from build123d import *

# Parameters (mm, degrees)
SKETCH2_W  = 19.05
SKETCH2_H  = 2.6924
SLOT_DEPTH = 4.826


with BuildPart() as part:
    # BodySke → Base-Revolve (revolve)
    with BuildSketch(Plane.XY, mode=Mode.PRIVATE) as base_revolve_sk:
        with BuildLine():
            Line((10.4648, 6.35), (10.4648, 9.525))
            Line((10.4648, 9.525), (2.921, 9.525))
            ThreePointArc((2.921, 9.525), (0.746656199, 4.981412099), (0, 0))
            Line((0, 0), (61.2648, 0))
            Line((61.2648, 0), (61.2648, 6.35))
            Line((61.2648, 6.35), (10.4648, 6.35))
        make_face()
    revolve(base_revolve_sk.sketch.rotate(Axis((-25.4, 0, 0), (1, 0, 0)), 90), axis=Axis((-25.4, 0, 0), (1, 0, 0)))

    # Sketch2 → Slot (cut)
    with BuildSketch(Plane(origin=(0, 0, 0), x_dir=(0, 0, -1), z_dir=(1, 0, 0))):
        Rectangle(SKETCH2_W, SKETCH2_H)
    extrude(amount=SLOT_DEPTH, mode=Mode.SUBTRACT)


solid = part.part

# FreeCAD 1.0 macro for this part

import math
import FreeCAD as App
import Part
import Sketcher

V = App.Vector
Q = App.Units.Quantity

doc = App.newDocument("Part")
body = doc.addObject("PartDesign::Body", "Body")

# Sketch on XY plane
sketch1 = doc.addObject("Sketcher::SketchObject", "Sketch")
body.addObject(sketch1)
sketch1.AttachmentSupport = (doc.XY_Plane, [""])
sketch1.MapMode = "FlatFace"
sketch1.addGeometry([
    Part.LineSegment(V(10.4648, 6.35, 0), V(10.4648, 9.525, 0)),  # 0
    Part.LineSegment(V(10.4648, 9.525, 0), V(2.921, 9.525, 0)),  # 1
    Part.ArcOfCircle(Part.Circle(V(16.990391, 0, 0), V(0, 0, 1), 16.990391), math.radians(145.901938), math.radians(180)),  # 2
    Part.LineSegment(V(0, 0, 0), V(61.2648, 0, 0)),  # 3
    Part.LineSegment(V(61.2648, 0, 0), V(61.2648, 6.35, 0)),  # 4
    Part.LineSegment(V(61.2648, 6.35, 0), V(10.4648, 6.35, 0)),  # 5
], False)
sketch1.addConstraint([
    Sketcher.Constraint("Coincident", 0, 2, 1, 1),
    Sketcher.Constraint("Coincident", 1, 2, 2, 1),
    Sketcher.Constraint("Coincident", 2, 2, 3, 1),
    Sketcher.Constraint("Coincident", 3, 2, 4, 1),
    Sketcher.Constraint("Coincident", 4, 2, 5, 1),
    Sketcher.Constraint("Coincident", 5, 2, 0, 1),
    Sketcher.Constraint("Vertical", 0),
    Sketcher.Constraint("Horizontal", 1),
    Sketcher.Constraint("Horizontal", 3),
    Sketcher.Constraint("Vertical", 4),
    Sketcher.Constraint("Horizontal", 5),
    Sketcher.Constraint("Coincident", 2, 2, -1, 1),
    Sketcher.Constraint("PointOnObject", 2, 3, -1),
    Sketcher.Constraint("DistanceX", 5, 2, 5, 1, Q("2 in")),
    Sketcher.Constraint("DistanceY", 4, 1, 4, 2, Q("0.25 in")),
    Sketcher.Constraint("DistanceX", 1, 2, 1, 1, Q("0.297 in")),
    Sketcher.Constraint("DistanceX", 3, 1, 3, 2, Q("2.412 in")),
    Sketcher.Constraint("DistanceY", 0, 1, 0, 2, Q("0.125 in")),
])
revolution = doc.addObject("PartDesign::Revolution", "Revolution")
body.addObject(revolution)
revolution.Profile = sketch1
revolution.ReferenceAxis = (sketch1, ["H_Axis"])
revolution.Angle = 360

# Sketch on YZ plane
sketch2 = doc.addObject("Sketcher::SketchObject", "Sketch001")
body.addObject(sketch2)
sketch2.AttachmentSupport = (doc.YZ_Plane, [""])
sketch2.MapMode = "FlatFace"
sketch2.addGeometry([
    Part.LineSegment(V(1.3462, 9.525, 0), V(-1.3462, 9.525, 0)),
    Part.LineSegment(V(-1.3462, 9.525, 0), V(-1.3462, -9.525, 0)),
    Part.LineSegment(V(-1.3462, -9.525, 0), V(1.3462, -9.525, 0)),
    Part.LineSegment(V(1.3462, -9.525, 0), V(1.3462, 9.525, 0)),
], False)
sketch2.addConstraint([
    Sketcher.Constraint("Coincident", 0, 2, 1, 1),
    Sketcher.Constraint("Coincident", 1, 2, 2, 1),
    Sketcher.Constraint("Coincident", 2, 2, 3, 1),
    Sketcher.Constraint("Coincident", 3, 2, 0, 1),
    Sketcher.Constraint("Horizontal", 0),
    Sketcher.Constraint("Vertical", 1),
    Sketcher.Constraint("Horizontal", 2),
    Sketcher.Constraint("Vertical", 3),
    Sketcher.Constraint("Symmetric", 0, 2, 2, 2, -1, 1),
    Sketcher.Constraint("DistanceY", 1, 2, 1, 1, Q("0.75 in")),
    Sketcher.Constraint("DistanceX", 0, 2, 0, 1, Q("0.106 in")),
])
pocket1 = doc.addObject("PartDesign::Pocket", "Pocket")
body.addObject(pocket1)
pocket1.Profile = sketch2
pocket1.Length = Q("0.19 in")
pocket1.Reversed = True

doc.recompute()
